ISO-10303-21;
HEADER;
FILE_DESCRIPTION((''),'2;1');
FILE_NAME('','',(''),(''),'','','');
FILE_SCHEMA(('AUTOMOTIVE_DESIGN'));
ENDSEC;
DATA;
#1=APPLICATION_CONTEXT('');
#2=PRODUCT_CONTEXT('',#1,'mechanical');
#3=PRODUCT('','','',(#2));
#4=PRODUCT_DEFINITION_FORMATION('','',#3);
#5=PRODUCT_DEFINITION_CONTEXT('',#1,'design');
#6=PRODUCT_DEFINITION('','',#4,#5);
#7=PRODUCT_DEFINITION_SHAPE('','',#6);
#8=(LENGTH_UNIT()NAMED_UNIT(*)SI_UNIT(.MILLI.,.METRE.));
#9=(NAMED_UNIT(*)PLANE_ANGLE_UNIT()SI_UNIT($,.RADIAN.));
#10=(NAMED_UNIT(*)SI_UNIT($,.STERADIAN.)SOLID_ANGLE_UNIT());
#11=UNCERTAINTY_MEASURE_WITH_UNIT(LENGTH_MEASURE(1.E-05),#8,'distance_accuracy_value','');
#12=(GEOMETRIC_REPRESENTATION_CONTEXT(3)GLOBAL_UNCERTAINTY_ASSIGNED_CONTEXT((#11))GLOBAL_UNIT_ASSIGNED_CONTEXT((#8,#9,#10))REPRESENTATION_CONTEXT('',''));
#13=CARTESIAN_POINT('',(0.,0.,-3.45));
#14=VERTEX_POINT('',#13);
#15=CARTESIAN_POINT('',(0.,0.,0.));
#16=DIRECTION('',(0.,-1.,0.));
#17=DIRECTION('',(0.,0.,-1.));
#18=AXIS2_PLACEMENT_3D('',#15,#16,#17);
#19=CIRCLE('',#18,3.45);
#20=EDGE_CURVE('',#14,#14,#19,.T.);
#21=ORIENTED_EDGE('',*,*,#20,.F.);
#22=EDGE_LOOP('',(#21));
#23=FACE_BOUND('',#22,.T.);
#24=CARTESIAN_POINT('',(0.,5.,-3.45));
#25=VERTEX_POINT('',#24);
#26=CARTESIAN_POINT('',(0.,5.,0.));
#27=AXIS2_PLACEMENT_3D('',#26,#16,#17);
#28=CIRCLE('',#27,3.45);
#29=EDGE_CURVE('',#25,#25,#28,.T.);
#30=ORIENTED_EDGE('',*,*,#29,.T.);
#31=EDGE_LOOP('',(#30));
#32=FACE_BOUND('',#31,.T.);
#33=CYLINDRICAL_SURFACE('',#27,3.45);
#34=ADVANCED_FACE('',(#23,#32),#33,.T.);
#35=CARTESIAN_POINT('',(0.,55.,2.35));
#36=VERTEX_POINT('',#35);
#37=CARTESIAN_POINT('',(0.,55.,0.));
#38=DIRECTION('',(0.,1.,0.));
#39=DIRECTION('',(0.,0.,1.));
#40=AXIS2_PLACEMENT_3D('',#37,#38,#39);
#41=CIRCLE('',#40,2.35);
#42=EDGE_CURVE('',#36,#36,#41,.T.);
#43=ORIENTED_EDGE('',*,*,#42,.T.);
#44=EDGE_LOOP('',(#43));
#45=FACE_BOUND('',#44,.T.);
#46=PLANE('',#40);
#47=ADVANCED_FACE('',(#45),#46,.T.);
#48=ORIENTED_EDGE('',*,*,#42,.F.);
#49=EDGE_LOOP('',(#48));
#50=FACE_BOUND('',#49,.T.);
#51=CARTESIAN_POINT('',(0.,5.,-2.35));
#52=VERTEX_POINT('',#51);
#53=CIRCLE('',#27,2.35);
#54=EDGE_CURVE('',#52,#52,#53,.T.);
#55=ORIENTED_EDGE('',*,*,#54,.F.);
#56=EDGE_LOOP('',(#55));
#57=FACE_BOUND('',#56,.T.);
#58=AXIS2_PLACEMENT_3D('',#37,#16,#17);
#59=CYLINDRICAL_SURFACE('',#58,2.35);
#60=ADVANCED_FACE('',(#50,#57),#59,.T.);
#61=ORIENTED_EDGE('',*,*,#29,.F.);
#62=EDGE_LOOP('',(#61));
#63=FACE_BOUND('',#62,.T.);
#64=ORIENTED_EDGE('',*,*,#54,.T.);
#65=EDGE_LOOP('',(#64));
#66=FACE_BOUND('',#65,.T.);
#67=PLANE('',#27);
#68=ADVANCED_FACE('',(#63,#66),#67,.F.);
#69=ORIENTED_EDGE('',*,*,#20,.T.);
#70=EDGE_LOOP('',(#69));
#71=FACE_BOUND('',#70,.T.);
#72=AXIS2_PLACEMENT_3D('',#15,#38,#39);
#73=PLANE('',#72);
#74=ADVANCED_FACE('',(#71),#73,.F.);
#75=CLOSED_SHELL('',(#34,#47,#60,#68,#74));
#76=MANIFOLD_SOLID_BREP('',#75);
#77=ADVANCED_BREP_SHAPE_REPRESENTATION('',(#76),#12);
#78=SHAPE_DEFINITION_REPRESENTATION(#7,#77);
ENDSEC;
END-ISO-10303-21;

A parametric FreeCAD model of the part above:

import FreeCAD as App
import Part
import Sketcher
from FreeCAD import Vector

doc = App.newDocument("Part")
params = doc.addObject("Spreadsheet::Sheet", "Params")
for row, (alias, value) in enumerate([
    ("sketch1_diameter", "4.7 mm"),
    ("pad1_length", "55 mm"),
    ("sketch2_diameter", "6.9 mm"),
    ("sketch2_diameter2", "4.7 mm"),
    ("pad2_length", "5 mm"),
], start=1):
    params.set(f"A{row}", alias)
    params.set(f"B{row}", "=" + value)
    params.setAlias(f"B{row}", alias)

body = doc.addObject("PartDesign::Body", "Body")

# Sketch on XZ plane
sketch1 = body.newObject("Sketcher::SketchObject", "Sketch")
sketch1.AttachmentSupport = (doc.getObject("XZ_Plane"), [""])
sketch1.MapMode = "FlatFace"
sketch1.addGeometry(Part.Circle(Vector(0, 0, 0), Vector(0, 0, 1), 2.35), False)
sketch1.addConstraint([
    Sketcher.Constraint("Coincident", 0, 3, -1, 1),
    Sketcher.Constraint("Diameter", 0, 4.7),
])
sketch1.setExpression("Constraints[1]", "Params.sketch1_diameter")
pad1 = body.newObject("PartDesign::Pad", "Pad")
pad1.Profile = sketch1
pad1.setExpression("Length", "Params.pad1_length")
pad1.Reversed = True

# Sketch on XZ plane
sketch2 = body.newObject("Sketcher::SketchObject", "Sketch001")
sketch2.AttachmentSupport = (doc.getObject("XZ_Plane"), [""])
sketch2.MapMode = "FlatFace"
sketch2.addGeometry([
    Part.Circle(Vector(0, 0, 0), Vector(0, 0, 1), 3.45),
    Part.Circle(Vector(0, 0, 0), Vector(0, 0, 1), 2.35),
], False)
sketch2.addConstraint([
    Sketcher.Constraint("Coincident", 0, 3, -1, 1),
    Sketcher.Constraint("Coincident", 1, 3, -1, 1),
    Sketcher.Constraint("Diameter", 0, 6.9),
    Sketcher.Constraint("Diameter", 1, 4.7),
])
sketch2.setExpression("Constraints[2]", "Params.sketch2_diameter")
sketch2.setExpression("Constraints[3]", "Params.sketch2_diameter2")
pad2 = body.newObject("PartDesign::Pad", "Pad001")
pad2.Profile = sketch2
pad2.setExpression("Length", "Params.pad2_length")
pad2.Reversed = True

doc.recompute()
